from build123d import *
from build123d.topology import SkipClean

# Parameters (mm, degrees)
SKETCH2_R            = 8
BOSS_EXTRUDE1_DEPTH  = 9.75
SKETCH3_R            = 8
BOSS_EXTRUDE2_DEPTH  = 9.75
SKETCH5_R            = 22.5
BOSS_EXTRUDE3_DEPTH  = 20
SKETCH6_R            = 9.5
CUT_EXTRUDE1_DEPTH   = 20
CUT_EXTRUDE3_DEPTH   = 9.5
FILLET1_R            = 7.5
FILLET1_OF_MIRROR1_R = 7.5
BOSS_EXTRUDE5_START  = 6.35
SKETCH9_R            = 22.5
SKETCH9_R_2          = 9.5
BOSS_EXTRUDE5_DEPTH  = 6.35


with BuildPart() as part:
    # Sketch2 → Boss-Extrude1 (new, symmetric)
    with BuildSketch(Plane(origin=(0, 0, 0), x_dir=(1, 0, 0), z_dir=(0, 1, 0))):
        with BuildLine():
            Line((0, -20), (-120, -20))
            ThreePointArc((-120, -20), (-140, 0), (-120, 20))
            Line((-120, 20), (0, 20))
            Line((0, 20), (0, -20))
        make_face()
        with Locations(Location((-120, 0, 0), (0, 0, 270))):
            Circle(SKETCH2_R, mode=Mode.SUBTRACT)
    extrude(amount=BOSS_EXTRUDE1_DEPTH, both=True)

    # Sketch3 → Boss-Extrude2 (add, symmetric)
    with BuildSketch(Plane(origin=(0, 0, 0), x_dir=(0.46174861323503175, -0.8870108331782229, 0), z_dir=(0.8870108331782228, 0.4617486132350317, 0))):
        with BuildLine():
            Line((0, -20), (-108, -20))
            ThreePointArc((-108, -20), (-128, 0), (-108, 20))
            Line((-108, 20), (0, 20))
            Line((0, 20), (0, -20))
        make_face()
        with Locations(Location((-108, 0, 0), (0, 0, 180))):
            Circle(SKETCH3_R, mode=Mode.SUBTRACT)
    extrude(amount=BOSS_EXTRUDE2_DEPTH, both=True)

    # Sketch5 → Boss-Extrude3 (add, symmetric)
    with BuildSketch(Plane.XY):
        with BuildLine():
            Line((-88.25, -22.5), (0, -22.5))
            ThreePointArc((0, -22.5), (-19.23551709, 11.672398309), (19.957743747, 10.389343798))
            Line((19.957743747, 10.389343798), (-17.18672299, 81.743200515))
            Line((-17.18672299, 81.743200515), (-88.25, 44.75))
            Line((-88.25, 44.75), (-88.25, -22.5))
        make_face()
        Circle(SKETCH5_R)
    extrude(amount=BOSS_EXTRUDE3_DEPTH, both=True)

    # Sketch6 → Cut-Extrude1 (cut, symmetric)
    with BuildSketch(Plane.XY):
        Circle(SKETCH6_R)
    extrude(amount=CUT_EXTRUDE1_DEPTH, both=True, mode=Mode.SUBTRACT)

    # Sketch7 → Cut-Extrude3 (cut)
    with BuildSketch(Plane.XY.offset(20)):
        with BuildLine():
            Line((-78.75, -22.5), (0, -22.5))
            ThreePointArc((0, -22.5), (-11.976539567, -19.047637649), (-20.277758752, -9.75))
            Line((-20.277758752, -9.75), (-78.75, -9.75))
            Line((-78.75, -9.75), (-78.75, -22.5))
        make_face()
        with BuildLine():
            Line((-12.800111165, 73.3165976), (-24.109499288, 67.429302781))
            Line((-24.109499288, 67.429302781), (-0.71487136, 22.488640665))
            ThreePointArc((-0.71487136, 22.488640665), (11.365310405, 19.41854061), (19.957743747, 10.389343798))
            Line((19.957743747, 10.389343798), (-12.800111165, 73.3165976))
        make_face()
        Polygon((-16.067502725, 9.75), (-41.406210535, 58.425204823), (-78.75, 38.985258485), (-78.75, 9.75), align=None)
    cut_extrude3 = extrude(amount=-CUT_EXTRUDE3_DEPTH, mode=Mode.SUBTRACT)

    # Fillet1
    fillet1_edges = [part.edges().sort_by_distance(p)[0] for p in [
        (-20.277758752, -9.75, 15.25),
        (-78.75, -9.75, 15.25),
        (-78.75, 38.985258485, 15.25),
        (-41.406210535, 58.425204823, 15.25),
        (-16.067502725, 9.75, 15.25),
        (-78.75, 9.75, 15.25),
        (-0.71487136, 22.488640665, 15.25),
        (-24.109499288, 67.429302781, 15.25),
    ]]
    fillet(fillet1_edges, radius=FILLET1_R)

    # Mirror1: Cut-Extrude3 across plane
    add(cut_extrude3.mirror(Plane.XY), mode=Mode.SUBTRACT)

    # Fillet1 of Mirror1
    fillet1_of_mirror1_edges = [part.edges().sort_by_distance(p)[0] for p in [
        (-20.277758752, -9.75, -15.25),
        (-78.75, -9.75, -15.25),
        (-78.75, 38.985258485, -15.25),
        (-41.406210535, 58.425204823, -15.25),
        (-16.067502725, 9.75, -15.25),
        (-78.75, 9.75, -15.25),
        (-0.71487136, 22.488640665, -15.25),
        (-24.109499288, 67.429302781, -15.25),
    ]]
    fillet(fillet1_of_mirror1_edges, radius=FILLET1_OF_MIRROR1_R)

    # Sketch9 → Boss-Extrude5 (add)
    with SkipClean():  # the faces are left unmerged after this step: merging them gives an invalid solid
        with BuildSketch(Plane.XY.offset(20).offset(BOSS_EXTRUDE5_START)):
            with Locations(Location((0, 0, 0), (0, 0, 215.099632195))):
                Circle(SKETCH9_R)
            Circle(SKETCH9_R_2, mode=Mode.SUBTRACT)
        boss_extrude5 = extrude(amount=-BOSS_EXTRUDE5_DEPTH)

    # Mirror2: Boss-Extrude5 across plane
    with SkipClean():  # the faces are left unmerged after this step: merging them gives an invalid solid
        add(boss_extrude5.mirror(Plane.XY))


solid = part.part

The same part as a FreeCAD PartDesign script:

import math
import FreeCAD as App
import Part
import Sketcher
Q = App.Units.Quantity


def edges_at(feature, points):
    """Names of the edges that pass closest to the given points."""
    edges = feature.Shape.Edges
    near = lambda p: min(range(len(edges)), key=lambda i: edges[i].distToShape(Part.Vertex(*p))[0])
    return sorted({f"Edge{near(p) + 1}" for p in points})


def add_polygon(sketch, points):
    """Adds a closed chain of lines whose ends are joined by coincident constraints."""
    first, n = sketch.GeometryCount, len(points)
    for a, b in zip(points, points[1:] + points[:1]):
        sketch.addGeometry(Part.LineSegment(App.Vector(*a, 0), App.Vector(*b, 0)), False)
    for i in range(n):
        sketch.addConstraint(Sketcher.Constraint("Coincident", first + i, 2, first + (i + 1) % n, 1))

doc = App.newDocument("Part")
body = doc.addObject("PartDesign::Body", "Body")

# Sketch on XZ plane
sketch1 = body.newObject("Sketcher::SketchObject", "Sketch")
sketch1.AttachmentSupport = (doc.getObject("XZ_Plane"), [""])
sketch1.MapMode = "FlatFace"
sketch1.addGeometry(Part.LineSegment(App.Vector(-120, 20, 0), App.Vector(0, 20, 0)), False)
sketch1.addGeometry(Part.LineSegment(App.Vector(0, 20, 0), App.Vector(0, -20, 0)), False)
sketch1.addGeometry(Part.LineSegment(App.Vector(0, -20, 0), App.Vector(-120, -20, 0)), False)
sketch1.addGeometry(Part.ArcOfCircle(Part.Circle(App.Vector(-120, 0, 0), App.Vector(0, 0, 1), 20), math.radians(90), math.radians(270)), False)
sketch1.addGeometry(Part.Circle(App.Vector(-120, 0, 0), App.Vector(0, 0, 1), 8), False)
sketch1.addConstraint(Sketcher.Constraint("Coincident", 0, 2, 1, 1))
sketch1.addConstraint(Sketcher.Constraint("Coincident", 1, 2, 2, 1))
sketch1.addConstraint(Sketcher.Constraint("Tangent", 2, 2, 3, 2))
sketch1.addConstraint(Sketcher.Constraint("Tangent", 3, 1, 0, 1))
sketch1.addConstraint(Sketcher.Constraint("Horizontal", 0))
sketch1.addConstraint(Sketcher.Constraint("Vertical", 1))
sketch1.addConstraint(Sketcher.Constraint("Horizontal", 2))
sketch1.addConstraint(Sketcher.Constraint("Coincident", 4, 3, 3, 3))
sketch1.addConstraint(Sketcher.Constraint("Symmetric", 0, 2, 1, 2, -1, 1))
sketch1.addConstraint(Sketcher.Constraint("Diameter", 4, 16.0))
sketch1.addConstraint(Sketcher.Constraint("Radius", 3, 20.0))
sketch1.addConstraint(Sketcher.Constraint("DistanceX", 0, 1, 0, 2, 120.0))
pad1 = body.newObject("PartDesign::Pad", "Pad")
pad1.Profile = sketch1
pad1.Length = 19.5
pad1.Midplane = True

# Sketch on an angled plane
sketch2 = body.newObject("Sketcher::SketchObject", "Sketch001")
sketch2.Placement = App.Placement(App.Vector(0, 0, 0), App.Rotation(App.Vector(0.461748613, -0.887010833, 0), App.Vector(0, 0, -0.999999999), App.Vector(0.887010833, 0.461748613, 0), "ZXY"))
sketch2.addGeometry(Part.LineSegment(App.Vector(-108, -20, 0), App.Vector(0, -20, 0)), False)
sketch2.addGeometry(Part.LineSegment(App.Vector(0, -20, 0), App.Vector(0, 20, 0)), False)
sketch2.addGeometry(Part.LineSegment(App.Vector(0, 20, 0), App.Vector(-108, 20, 0)), False)
sketch2.addGeometry(Part.ArcOfCircle(Part.Circle(App.Vector(-108, 0, 0), App.Vector(0, 0, 1), 20), math.radians(90), math.radians(270)), False)
sketch2.addGeometry(Part.Circle(App.Vector(-108, 0, 0), App.Vector(0, 0, 1), 8), False)
sketch2.addConstraint(Sketcher.Constraint("Coincident", 0, 2, 1, 1))
sketch2.addConstraint(Sketcher.Constraint("Coincident", 1, 2, 2, 1))
sketch2.addConstraint(Sketcher.Constraint("Tangent", 2, 2, 3, 1))
sketch2.addConstraint(Sketcher.Constraint("Tangent", 3, 2, 0, 1))
sketch2.addConstraint(Sketcher.Constraint("Horizontal", 0))
sketch2.addConstraint(Sketcher.Constraint("Vertical", 1))
sketch2.addConstraint(Sketcher.Constraint("Horizontal", 2))
sketch2.addConstraint(Sketcher.Constraint("Coincident", 4, 3, 3, 3))
sketch2.addConstraint(Sketcher.Constraint("Symmetric", 0, 2, 1, 2, -1, 1))
sketch2.addConstraint(Sketcher.Constraint("Diameter", 4, 16.0))
sketch2.addConstraint(Sketcher.Constraint("Radius", 3, 20.0))
sketch2.addConstraint(Sketcher.Constraint("DistanceX", 0, 1, 0, 2, 108.0))
pad2 = body.newObject("PartDesign::Pad", "Pad001")
pad2.Profile = sketch2
pad2.Length = 19.5
pad2.Midplane = True

# Sketch on XY plane
sketch3 = body.newObject("Sketcher::SketchObject", "Sketch002")
sketch3.AttachmentSupport = (doc.getObject("XY_Plane"), [""])
sketch3.MapMode = "FlatFace"
sketch3.addGeometry(Part.LineSegment(App.Vector(-88, -22, 0), App.Vector(0, -22, 0)), False)
sketch3.addGeometry(Part.ArcOfCircle(Part.Circle(App.Vector(0, 0, 0), App.Vector(0, 0, 1), 22), math.radians(-90), math.radians(27)), False)
sketch3.addGeometry(Part.LineSegment(App.Vector(20, 10, 0), App.Vector(-17, 82, 0)), False)
sketch3.addGeometry(Part.LineSegment(App.Vector(-17, 82, 0), App.Vector(-88, 45, 0)), False)
sketch3.addGeometry(Part.LineSegment(App.Vector(-88, 45, 0), App.Vector(-88, -22, 0)), False)
sketch3.addConstraint(Sketcher.Constraint("Tangent", 0, 2, 1, 1))
sketch3.addConstraint(Sketcher.Constraint("Tangent", 1, 2, 2, 1))
sketch3.addConstraint(Sketcher.Constraint("Coincident", 2, 2, 3, 1))
sketch3.addConstraint(Sketcher.Constraint("Coincident", 3, 2, 4, 1))
sketch3.addConstraint(Sketcher.Constraint("Coincident", 4, 2, 0, 1))
sketch3.addConstraint(Sketcher.Constraint("Horizontal", 0))
sketch3.addConstraint(Sketcher.Constraint("Vertical", 4))
sketch3.addConstraint(Sketcher.Constraint("Coincident", 1, 3, -1, 1))
sketch3.addConstraint(Sketcher.Constraint("Perpendicular", 2, 3))
sketch3.addConstraint(Sketcher.Constraint("Radius", 1, 22.5))
sketch3.addConstraint(Sketcher.Constraint("Angle", 2, Q("117.5 deg")))
sketch3.addConstraint(Sketcher.Constraint("DistanceX", 0, 1, 0, 2, 88.25))
sketch3.addConstraint(Sketcher.Constraint("DistanceY", 4, 2, 4, 1, 67.25))
pad3 = body.newObject("PartDesign::Pad", "Pad002")
pad3.Profile = sketch3
pad3.Length = 40
pad3.Midplane = True

# Sketch on XY plane
sketch4 = body.newObject("Sketcher::SketchObject", "Sketch003")
sketch4.AttachmentSupport = (doc.getObject("XY_Plane"), [""])
sketch4.MapMode = "FlatFace"
sketch4.addGeometry(Part.Circle(App.Vector(0, 0, 0), App.Vector(0, 0, 1), 10), False)
sketch4.addConstraint(Sketcher.Constraint("Coincident", 0, 3, -1, 1))
sketch4.addConstraint(Sketcher.Constraint("Diameter", 0, 19.0))
pocket1 = body.newObject("PartDesign::Pocket", "Pocket")
pocket1.Profile = sketch4
pocket1.Length = 40
pocket1.Midplane = True

# Sketch on XY plane
sketch5 = body.newObject("Sketcher::SketchObject", "Sketch004")
sketch5.AttachmentSupport = (doc.getObject("XY_Plane"), [""])
sketch5.MapMode = "FlatFace"
sketch5.AttachmentOffset = App.Placement(App.Vector(0, 0, 20), App.Rotation())
sketch5.addGeometry(Part.LineSegment(App.Vector(-79, -22, 0), App.Vector(0, -22, 0)), False)  # 0
sketch5.addGeometry(Part.ArcOfCircle(Part.Circle(App.Vector(0, 0, 0), App.Vector(0, 0, 1), 22), math.radians(-154), math.radians(-90)), False)  # 1
sketch5.addGeometry(Part.LineSegment(App.Vector(-20, -10, 0), App.Vector(-79, -10, 0)), False)  # 2
sketch5.addGeometry(Part.LineSegment(App.Vector(-79, -10, 0), App.Vector(-79, -22, 0)), False)  # 3
sketch5.addGeometry(Part.LineSegment(App.Vector(-13, 73, 0), App.Vector(-24, 67, 0)), False)  # 4
sketch5.addGeometry(Part.LineSegment(App.Vector(-24, 67, 0), App.Vector(-1, 22, 0)), False)  # 5
sketch5.addGeometry(Part.ArcOfCircle(Part.Circle(App.Vector(0, 0, 0), App.Vector(0, 0, 1), 22), math.radians(27), math.radians(92)), False)  # 6
sketch5.addGeometry(Part.LineSegment(App.Vector(20, 10, 0), App.Vector(-13, 73, 0)), False)  # 7
add_polygon(sketch5, [(-16, 10), (-41, 58), (-79, 39), (-79, 10)])  # lines 8-11
sketch5.addConstraint(Sketcher.Constraint("Tangent", 0, 2, 1, 2))
sketch5.addConstraint(Sketcher.Constraint("Coincident", 1, 1, 2, 1))
sketch5.addConstraint(Sketcher.Constraint("Coincident", 2, 2, 3, 1))
sketch5.addConstraint(Sketcher.Constraint("Coincident", 3, 2, 0, 1))
sketch5.addConstraint(Sketcher.Constraint("Coincident", 4, 2, 5, 1))
sketch5.addConstraint(Sketcher.Constraint("Coincident", 5, 2, 6, 2))
sketch5.addConstraint(Sketcher.Constraint("Tangent", 6, 1, 7, 1))
sketch5.addConstraint(Sketcher.Constraint("Coincident", 7, 2, 4, 1))
sketch5.addConstraint(Sketcher.Constraint("Horizontal", 0))
sketch5.addConstraint(Sketcher.Constraint("Horizontal", 2))
sketch5.addConstraint(Sketcher.Constraint("Vertical", 3))
sketch5.addConstraint(Sketcher.Constraint("Vertical", 10))
sketch5.addConstraint(Sketcher.Constraint("Horizontal", 11))
sketch5.addConstraint(Sketcher.Constraint("Coincident", 1, 3, -1, 1))
sketch5.addConstraint(Sketcher.Constraint("Coincident", 6, 3, -1, 1))
sketch5.addConstraint(Sketcher.Constraint("Equal", 1, 6))
sketch5.addConstraint(Sketcher.Constraint("Symmetric", 2, 2, 10, 2, -1))
sketch5.addConstraint(Sketcher.Constraint("Perpendicular", 4, 5))
sketch5.addConstraint(Sketcher.Constraint("Parallel", 5, 7))
sketch5.addConstraint(Sketcher.Constraint("Parallel", 7, 8))
sketch5.addConstraint(Sketcher.Constraint("Perpendicular", 8, 9))
sketch5.addConstraint(Sketcher.Constraint("Radius", 1, 22.5))
sketch5.addConstraint(Sketcher.Constraint("Angle", 4, Q("-152.5 deg")))
sketch5.addConstraint(Sketcher.Constraint("DistanceX", 0, 1, 0, 2, 78.75))
sketch5.addConstraint(Sketcher.Constraint("DistanceY", 3, 2, 3, 1, 12.75))
sketch5.addConstraint(Sketcher.Constraint("Distance", 4, 12.75))
sketch5.addConstraint(Sketcher.Constraint("DistanceY", 10, 2, 10, 1, 29.235258))
sketch5.addConstraint(Sketcher.Constraint("DistanceX", 4, 2, -1, 1, 24.109499))
sketch5.addConstraint(Sketcher.Constraint("DistanceX", 8, 2, 7, 2, 28.606099))
pocket2 = body.newObject("PartDesign::Pocket", "Pocket001")
pocket2.Profile = sketch5
pocket2.Length = 9.5
doc.recompute()

fillet = body.newObject("PartDesign::Fillet", "Fillet")
fillet.Base = (pocket2, edges_at(pocket2, [
    (-20.278, -9.75, 15.25),
    (-78.75, -9.75, 15.25),
    (-78.75, 38.985, 15.25),
    (-41.406, 58.425, 15.25),
    (-16.068, 9.75, 15.25),
    (-78.75, 9.75, 15.25),
    (-0.715, 22.489, 15.25),
    (-24.109, 67.429, 15.25),
]))
fillet.Radius = 7.5
doc.recompute()

mirrored = body.newObject("PartDesign::Mirrored", "Mirrored")
mirrored.Originals = [pocket2]
mirrored.MirrorPlane = (doc.getObject("XY_Plane"), [""])
body.Tip = mirrored
doc.recompute()

fillet2 = body.newObject("PartDesign::Fillet", "Fillet001")
fillet2.Base = (mirrored, edges_at(mirrored, [
    (-20.278, -9.75, -15.25),
    (-78.75, -9.75, -15.25),
    (-78.75, 38.985, -15.25),
    (-41.406, 58.425, -15.25),
    (-16.068, 9.75, -15.25),
    (-78.75, 9.75, -15.25),
    (-0.715, 22.489, -15.25),
    (-24.109, 67.429, -15.25),
]))
fillet2.Radius = 7.5

# Sketch on XY plane
sketch6 = body.newObject("Sketcher::SketchObject", "Sketch005")
sketch6.AttachmentSupport = (doc.getObject("XY_Plane"), [""])
sketch6.MapMode = "FlatFace"
sketch6.AttachmentOffset = App.Placement(App.Vector(0, 0, 26.35), App.Rotation())
sketch6.addGeometry(Part.Circle(App.Vector(0, 0, 0), App.Vector(0, 0, 1), 22), False)
sketch6.addGeometry(Part.Circle(App.Vector(0, 0, 0), App.Vector(0, 0, 1), 10), False)
sketch6.addConstraint(Sketcher.Constraint("Coincident", 0, 3, -1, 1))
sketch6.addConstraint(Sketcher.Constraint("Coincident", 1, 3, -1, 1))
sketch6.addConstraint(Sketcher.Constraint("Diameter", 0, 45.0))
sketch6.addConstraint(Sketcher.Constraint("Diameter", 1, 19.0))
pad4 = body.newObject("PartDesign::Pad", "Pad003")
pad4.Profile = sketch6
pad4.Length = 6.35
pad4.Reversed = True
doc.recompute()

mirrored2 = body.newObject("PartDesign::Mirrored", "Mirrored001")
mirrored2.Originals = [pad4]
mirrored2.MirrorPlane = (doc.getObject("XY_Plane"), [""])
body.Tip = mirrored2

doc.recompute()
